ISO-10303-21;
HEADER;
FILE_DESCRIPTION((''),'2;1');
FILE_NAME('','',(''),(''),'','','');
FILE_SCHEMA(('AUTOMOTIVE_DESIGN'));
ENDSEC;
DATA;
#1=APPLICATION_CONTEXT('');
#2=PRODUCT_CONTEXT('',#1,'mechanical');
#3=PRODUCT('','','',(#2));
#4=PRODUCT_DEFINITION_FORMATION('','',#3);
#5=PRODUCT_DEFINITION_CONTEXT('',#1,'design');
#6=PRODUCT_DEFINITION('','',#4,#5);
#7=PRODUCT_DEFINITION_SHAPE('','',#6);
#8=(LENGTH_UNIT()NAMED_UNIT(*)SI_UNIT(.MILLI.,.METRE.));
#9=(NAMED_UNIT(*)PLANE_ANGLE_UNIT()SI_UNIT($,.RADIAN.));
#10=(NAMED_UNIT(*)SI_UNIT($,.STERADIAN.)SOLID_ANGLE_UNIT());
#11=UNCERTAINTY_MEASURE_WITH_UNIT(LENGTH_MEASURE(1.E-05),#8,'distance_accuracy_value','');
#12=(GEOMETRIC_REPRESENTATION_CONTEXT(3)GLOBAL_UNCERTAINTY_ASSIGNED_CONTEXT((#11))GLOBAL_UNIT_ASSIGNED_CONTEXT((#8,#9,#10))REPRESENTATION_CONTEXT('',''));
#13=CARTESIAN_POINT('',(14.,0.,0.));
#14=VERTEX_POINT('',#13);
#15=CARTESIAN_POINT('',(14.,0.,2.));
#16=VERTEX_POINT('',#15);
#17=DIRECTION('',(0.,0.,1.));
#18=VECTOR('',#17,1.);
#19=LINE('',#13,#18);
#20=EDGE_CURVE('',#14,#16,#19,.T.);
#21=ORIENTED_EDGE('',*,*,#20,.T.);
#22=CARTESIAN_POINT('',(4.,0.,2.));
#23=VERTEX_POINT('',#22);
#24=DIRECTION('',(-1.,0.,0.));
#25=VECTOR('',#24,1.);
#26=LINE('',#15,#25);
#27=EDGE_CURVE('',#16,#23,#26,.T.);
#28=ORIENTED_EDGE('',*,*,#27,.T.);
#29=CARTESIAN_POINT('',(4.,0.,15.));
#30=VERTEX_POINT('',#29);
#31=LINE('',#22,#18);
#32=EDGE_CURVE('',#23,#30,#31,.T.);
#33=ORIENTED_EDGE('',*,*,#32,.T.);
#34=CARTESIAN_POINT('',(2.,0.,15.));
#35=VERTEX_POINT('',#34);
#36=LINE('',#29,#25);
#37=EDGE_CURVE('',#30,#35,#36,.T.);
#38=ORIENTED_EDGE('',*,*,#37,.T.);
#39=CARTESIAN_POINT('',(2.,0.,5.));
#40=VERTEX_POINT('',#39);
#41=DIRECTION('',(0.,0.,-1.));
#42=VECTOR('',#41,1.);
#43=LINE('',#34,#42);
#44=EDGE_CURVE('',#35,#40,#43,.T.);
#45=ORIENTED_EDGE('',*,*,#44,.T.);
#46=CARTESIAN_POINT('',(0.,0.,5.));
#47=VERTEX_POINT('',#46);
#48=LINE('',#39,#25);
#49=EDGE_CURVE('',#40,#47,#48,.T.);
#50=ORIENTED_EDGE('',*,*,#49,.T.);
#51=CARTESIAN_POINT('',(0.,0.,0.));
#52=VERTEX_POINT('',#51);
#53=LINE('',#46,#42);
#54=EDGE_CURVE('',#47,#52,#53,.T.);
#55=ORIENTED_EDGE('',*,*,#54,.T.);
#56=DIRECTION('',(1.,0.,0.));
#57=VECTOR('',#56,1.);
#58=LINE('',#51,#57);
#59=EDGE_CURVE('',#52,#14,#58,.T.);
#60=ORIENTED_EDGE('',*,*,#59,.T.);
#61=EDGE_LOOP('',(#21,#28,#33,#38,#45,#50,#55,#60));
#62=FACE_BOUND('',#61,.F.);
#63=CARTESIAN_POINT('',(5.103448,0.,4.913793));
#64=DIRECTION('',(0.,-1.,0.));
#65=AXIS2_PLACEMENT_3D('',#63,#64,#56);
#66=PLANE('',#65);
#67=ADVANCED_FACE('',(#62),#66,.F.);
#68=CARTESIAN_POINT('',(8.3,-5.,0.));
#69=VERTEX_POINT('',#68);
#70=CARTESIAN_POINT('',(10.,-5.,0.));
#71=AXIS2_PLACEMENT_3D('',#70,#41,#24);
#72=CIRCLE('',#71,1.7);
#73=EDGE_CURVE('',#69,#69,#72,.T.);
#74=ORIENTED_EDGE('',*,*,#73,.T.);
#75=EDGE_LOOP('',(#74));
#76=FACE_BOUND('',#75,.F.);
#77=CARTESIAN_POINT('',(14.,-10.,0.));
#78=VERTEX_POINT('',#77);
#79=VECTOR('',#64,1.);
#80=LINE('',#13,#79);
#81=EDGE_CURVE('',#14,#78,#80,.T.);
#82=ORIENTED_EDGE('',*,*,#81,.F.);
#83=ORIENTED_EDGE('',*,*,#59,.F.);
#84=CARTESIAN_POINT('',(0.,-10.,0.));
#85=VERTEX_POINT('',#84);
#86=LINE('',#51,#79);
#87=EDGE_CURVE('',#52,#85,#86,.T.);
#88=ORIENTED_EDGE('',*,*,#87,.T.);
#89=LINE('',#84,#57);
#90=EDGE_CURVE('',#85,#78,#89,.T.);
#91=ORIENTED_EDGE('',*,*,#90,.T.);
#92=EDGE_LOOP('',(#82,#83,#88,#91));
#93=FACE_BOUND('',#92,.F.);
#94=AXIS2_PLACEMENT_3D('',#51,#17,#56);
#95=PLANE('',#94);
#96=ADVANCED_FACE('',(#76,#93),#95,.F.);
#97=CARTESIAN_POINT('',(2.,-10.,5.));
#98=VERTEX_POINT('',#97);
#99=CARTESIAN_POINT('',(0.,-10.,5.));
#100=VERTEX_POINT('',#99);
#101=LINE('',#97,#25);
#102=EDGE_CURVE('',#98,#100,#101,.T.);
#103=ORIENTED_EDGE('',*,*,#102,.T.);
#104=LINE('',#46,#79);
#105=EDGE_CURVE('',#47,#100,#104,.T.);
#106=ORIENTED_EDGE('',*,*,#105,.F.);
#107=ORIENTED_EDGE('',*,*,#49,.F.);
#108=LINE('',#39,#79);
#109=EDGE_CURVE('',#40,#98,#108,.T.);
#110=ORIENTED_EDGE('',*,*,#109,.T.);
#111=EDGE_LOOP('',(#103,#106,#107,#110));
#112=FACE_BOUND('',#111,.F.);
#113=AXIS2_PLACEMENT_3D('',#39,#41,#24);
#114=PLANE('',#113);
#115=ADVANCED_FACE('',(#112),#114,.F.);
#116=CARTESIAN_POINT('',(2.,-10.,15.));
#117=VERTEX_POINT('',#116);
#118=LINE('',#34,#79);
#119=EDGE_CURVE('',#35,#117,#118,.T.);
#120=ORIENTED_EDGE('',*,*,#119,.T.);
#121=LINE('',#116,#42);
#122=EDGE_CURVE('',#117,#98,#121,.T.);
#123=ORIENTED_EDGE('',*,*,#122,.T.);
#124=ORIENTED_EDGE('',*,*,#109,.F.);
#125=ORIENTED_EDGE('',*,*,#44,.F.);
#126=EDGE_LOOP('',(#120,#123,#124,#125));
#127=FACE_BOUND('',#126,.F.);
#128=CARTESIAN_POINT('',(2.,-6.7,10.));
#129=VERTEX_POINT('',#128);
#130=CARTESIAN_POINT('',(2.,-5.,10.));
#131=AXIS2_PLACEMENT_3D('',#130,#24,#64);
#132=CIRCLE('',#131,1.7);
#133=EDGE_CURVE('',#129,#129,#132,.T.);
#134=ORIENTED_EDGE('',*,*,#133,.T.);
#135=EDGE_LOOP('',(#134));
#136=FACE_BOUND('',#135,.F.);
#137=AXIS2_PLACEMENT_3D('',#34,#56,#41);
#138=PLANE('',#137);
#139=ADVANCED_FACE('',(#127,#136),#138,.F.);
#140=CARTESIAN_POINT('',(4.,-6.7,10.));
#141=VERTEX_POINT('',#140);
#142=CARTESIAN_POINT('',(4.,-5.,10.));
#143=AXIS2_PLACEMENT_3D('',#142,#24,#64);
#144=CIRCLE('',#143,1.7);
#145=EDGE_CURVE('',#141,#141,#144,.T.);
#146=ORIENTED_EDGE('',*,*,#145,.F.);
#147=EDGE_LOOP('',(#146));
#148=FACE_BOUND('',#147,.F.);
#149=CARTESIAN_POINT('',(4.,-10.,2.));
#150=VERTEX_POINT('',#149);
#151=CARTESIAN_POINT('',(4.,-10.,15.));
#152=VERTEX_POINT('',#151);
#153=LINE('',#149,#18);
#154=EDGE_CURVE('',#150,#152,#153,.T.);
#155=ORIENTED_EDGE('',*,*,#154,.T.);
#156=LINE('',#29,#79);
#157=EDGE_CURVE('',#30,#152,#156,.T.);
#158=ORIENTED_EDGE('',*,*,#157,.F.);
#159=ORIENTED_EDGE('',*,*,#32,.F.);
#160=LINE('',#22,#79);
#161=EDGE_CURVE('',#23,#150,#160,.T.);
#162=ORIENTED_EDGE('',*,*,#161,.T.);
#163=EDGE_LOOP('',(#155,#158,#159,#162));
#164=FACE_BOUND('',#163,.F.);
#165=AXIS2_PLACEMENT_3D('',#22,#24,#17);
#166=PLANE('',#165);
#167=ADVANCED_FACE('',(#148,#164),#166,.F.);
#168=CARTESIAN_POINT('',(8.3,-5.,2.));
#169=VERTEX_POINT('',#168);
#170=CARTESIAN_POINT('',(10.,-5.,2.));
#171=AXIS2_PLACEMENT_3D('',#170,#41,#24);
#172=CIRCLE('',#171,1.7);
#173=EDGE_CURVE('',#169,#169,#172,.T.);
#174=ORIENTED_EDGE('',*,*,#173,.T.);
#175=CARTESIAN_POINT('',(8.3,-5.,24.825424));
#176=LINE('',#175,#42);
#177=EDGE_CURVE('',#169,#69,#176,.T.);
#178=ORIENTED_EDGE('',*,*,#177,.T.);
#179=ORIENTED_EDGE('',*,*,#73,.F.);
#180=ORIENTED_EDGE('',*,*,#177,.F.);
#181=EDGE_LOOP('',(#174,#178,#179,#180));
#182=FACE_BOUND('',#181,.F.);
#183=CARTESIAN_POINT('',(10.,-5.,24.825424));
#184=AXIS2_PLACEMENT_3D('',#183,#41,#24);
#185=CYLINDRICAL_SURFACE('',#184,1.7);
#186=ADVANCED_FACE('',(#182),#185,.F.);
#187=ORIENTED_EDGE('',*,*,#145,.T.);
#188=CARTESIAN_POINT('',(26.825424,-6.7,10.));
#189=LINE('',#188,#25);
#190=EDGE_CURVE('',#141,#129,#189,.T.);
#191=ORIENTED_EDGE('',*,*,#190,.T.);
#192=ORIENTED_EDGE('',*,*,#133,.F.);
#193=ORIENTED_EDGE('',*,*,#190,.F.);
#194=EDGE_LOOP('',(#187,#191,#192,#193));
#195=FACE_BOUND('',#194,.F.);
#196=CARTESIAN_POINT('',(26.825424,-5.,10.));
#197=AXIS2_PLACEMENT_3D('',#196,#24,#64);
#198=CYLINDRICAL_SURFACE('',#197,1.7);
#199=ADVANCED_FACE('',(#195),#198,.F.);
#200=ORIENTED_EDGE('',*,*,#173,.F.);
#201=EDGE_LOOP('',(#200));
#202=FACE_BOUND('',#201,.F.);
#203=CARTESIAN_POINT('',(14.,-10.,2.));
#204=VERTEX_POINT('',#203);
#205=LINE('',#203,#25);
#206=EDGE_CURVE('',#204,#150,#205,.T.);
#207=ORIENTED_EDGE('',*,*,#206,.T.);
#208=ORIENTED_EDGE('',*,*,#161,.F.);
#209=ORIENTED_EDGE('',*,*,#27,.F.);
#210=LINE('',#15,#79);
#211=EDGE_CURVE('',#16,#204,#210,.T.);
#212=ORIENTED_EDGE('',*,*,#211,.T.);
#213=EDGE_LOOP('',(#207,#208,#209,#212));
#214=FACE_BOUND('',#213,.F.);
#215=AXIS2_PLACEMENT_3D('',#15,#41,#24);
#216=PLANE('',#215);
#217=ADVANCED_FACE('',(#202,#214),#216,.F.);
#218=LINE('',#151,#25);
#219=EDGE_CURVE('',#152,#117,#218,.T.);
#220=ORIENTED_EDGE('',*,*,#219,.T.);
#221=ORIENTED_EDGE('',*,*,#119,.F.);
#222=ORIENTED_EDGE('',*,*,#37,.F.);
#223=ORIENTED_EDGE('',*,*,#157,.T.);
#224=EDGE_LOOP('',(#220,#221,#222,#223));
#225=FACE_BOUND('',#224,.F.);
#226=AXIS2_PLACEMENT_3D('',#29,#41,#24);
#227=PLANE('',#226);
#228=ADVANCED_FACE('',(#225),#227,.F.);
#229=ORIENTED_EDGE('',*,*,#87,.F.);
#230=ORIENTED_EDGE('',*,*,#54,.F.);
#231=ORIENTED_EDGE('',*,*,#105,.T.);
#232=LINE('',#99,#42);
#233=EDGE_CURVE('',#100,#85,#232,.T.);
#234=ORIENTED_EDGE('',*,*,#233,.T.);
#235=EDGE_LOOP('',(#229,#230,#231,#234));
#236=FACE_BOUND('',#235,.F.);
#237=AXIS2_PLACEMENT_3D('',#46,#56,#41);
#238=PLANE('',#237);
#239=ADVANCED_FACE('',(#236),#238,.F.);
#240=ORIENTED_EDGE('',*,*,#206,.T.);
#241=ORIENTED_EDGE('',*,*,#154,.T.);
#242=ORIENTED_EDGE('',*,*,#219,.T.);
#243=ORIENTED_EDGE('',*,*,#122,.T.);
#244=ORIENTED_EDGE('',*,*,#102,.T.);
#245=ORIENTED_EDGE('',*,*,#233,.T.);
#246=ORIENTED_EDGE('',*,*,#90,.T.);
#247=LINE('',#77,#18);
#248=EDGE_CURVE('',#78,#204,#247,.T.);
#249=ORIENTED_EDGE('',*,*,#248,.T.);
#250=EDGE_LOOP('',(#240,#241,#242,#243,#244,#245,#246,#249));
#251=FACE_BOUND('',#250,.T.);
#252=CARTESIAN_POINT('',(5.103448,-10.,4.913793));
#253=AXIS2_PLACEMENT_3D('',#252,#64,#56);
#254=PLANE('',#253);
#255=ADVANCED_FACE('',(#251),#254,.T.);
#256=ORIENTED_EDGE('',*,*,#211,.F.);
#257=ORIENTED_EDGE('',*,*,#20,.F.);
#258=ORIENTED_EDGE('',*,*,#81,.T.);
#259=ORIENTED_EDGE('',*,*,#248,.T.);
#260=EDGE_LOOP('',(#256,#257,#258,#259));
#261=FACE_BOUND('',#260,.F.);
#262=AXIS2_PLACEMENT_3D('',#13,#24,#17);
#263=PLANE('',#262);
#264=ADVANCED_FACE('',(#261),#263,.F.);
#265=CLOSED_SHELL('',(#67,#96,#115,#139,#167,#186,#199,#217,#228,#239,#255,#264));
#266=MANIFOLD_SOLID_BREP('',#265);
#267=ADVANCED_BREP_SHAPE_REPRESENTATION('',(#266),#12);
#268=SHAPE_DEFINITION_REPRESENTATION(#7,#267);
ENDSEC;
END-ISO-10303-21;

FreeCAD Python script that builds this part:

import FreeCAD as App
import Part
import Sketcher
Q = App.Units.Quantity

doc = App.newDocument("Part")
body = doc.addObject("PartDesign::Body", "Body")

# Sketch on XZ plane
sketch1 = body.newObject("Sketcher::SketchObject", "Sketch")
sketch1.AttachmentSupport = (doc.getObject("XZ_Plane"), [""])
sketch1.MapMode = "FlatFace"
sketch1.addGeometry(Part.LineSegment(App.Vector(0, 5, 0), App.Vector(0, 0, 0)), False)
sketch1.addGeometry(Part.LineSegment(App.Vector(0, 0, 0), App.Vector(14, 0, 0)), False)
sketch1.addGeometry(Part.LineSegment(App.Vector(14, 0, 0), App.Vector(14, 2, 0)), False)
sketch1.addGeometry(Part.LineSegment(App.Vector(14, 2, 0), App.Vector(4, 2, 0)), False)
sketch1.addGeometry(Part.LineSegment(App.Vector(4, 2, 0), App.Vector(4, 15, 0)), False)
sketch1.addGeometry(Part.LineSegment(App.Vector(4, 15, 0), App.Vector(2, 15, 0)), False)
sketch1.addGeometry(Part.LineSegment(App.Vector(2, 15, 0), App.Vector(2, 5, 0)), False)
sketch1.addGeometry(Part.LineSegment(App.Vector(2, 5, 0), App.Vector(0, 5, 0)), False)
sketch1.addConstraint(Sketcher.Constraint("Coincident", 0, 2, 1, 1))
sketch1.addConstraint(Sketcher.Constraint("Coincident", 1, 2, 2, 1))
sketch1.addConstraint(Sketcher.Constraint("Coincident", 2, 2, 3, 1))
sketch1.addConstraint(Sketcher.Constraint("Coincident", 3, 2, 4, 1))
sketch1.addConstraint(Sketcher.Constraint("Coincident", 4, 2, 5, 1))
sketch1.addConstraint(Sketcher.Constraint("Coincident", 5, 2, 6, 1))
sketch1.addConstraint(Sketcher.Constraint("Coincident", 6, 2, 7, 1))
sketch1.addConstraint(Sketcher.Constraint("Coincident", 7, 2, 0, 1))
sketch1.addConstraint(Sketcher.Constraint("Vertical", 0))
sketch1.addConstraint(Sketcher.Constraint("Horizontal", 1))
sketch1.addConstraint(Sketcher.Constraint("Vertical", 2))
sketch1.addConstraint(Sketcher.Constraint("Horizontal", 3))
sketch1.addConstraint(Sketcher.Constraint("Vertical", 4))
sketch1.addConstraint(Sketcher.Constraint("Horizontal", 5))
sketch1.addConstraint(Sketcher.Constraint("Vertical", 6))
sketch1.addConstraint(Sketcher.Constraint("Horizontal", 7))
sketch1.addConstraint(Sketcher.Constraint("Coincident", 0, 2, -1, 1))
sketch1.addConstraint(Sketcher.Constraint("Equal", 5, 7))
sketch1.addConstraint(Sketcher.Constraint("Equal", 7, 2))
sketch1.addConstraint(Sketcher.Constraint("Equal", 3, 6))
sketch1.addConstraint(Sketcher.Constraint("DistanceX", 1, 1, 1, 2, Q("14 mm")))
sketch1.addConstraint(Sketcher.Constraint("DistanceX", 3, 2, 3, 1, Q("10 mm")))
sketch1.addConstraint(Sketcher.Constraint("DistanceY", 0, 2, 0, 1, Q("5 mm")))
pad1 = body.newObject("PartDesign::Pad", "Pad")
pad1.Profile = sketch1
pad1.Length = 10

# Sketch on YZ plane
sketch2 = body.newObject("Sketcher::SketchObject", "Sketch001")
sketch2.AttachmentSupport = (doc.getObject("YZ_Plane"), [""])
sketch2.MapMode = "FlatFace"
sketch2.AttachmentOffset = App.Placement(App.Vector(0, 0, 4), App.Rotation())
sketch2.addGeometry(Part.Circle(App.Vector(-5, 10, 0), App.Vector(0, 0, 1), 1.7), False)
sketch2.addConstraint(Sketcher.Constraint("Diameter", 0, Q("3.4 mm")))
sketch2.addConstraint(Sketcher.Constraint("DistanceX", 0, 3, -1, 1, Q("5 mm")))
sketch2.addConstraint(Sketcher.Constraint("DistanceY", -1, 1, 0, 3, Q("10 mm")))
doc.recompute()
hole = body.newObject("PartDesign::Hole", "Hole")
hole.Profile = sketch2
hole.ThreadType = "None"
hole.Diameter = 3.4
hole.DepthType = "ThroughAll"

# Sketch on XY plane
sketch3 = body.newObject("Sketcher::SketchObject", "Sketch002")
sketch3.AttachmentSupport = (doc.getObject("XY_Plane"), [""])
sketch3.MapMode = "FlatFace"
sketch3.AttachmentOffset = App.Placement(App.Vector(0, 0, 2), App.Rotation())
sketch3.addGeometry(Part.Circle(App.Vector(10, -5, 0), App.Vector(0, 0, 1), 1.7), False)
sketch3.addConstraint(Sketcher.Constraint("Diameter", 0, Q("3.4 mm")))
sketch3.addConstraint(Sketcher.Constraint("DistanceX", -1, 1, 0, 3, Q("10 mm")))
sketch3.addConstraint(Sketcher.Constraint("DistanceY", 0, 3, -1, 1, Q("5 mm")))
doc.recompute()
hole2 = body.newObject("PartDesign::Hole", "Hole001")
hole2.Profile = sketch3
hole2.ThreadType = "None"
hole2.Diameter = 3.4
hole2.DepthType = "ThroughAll"

doc.recompute()
